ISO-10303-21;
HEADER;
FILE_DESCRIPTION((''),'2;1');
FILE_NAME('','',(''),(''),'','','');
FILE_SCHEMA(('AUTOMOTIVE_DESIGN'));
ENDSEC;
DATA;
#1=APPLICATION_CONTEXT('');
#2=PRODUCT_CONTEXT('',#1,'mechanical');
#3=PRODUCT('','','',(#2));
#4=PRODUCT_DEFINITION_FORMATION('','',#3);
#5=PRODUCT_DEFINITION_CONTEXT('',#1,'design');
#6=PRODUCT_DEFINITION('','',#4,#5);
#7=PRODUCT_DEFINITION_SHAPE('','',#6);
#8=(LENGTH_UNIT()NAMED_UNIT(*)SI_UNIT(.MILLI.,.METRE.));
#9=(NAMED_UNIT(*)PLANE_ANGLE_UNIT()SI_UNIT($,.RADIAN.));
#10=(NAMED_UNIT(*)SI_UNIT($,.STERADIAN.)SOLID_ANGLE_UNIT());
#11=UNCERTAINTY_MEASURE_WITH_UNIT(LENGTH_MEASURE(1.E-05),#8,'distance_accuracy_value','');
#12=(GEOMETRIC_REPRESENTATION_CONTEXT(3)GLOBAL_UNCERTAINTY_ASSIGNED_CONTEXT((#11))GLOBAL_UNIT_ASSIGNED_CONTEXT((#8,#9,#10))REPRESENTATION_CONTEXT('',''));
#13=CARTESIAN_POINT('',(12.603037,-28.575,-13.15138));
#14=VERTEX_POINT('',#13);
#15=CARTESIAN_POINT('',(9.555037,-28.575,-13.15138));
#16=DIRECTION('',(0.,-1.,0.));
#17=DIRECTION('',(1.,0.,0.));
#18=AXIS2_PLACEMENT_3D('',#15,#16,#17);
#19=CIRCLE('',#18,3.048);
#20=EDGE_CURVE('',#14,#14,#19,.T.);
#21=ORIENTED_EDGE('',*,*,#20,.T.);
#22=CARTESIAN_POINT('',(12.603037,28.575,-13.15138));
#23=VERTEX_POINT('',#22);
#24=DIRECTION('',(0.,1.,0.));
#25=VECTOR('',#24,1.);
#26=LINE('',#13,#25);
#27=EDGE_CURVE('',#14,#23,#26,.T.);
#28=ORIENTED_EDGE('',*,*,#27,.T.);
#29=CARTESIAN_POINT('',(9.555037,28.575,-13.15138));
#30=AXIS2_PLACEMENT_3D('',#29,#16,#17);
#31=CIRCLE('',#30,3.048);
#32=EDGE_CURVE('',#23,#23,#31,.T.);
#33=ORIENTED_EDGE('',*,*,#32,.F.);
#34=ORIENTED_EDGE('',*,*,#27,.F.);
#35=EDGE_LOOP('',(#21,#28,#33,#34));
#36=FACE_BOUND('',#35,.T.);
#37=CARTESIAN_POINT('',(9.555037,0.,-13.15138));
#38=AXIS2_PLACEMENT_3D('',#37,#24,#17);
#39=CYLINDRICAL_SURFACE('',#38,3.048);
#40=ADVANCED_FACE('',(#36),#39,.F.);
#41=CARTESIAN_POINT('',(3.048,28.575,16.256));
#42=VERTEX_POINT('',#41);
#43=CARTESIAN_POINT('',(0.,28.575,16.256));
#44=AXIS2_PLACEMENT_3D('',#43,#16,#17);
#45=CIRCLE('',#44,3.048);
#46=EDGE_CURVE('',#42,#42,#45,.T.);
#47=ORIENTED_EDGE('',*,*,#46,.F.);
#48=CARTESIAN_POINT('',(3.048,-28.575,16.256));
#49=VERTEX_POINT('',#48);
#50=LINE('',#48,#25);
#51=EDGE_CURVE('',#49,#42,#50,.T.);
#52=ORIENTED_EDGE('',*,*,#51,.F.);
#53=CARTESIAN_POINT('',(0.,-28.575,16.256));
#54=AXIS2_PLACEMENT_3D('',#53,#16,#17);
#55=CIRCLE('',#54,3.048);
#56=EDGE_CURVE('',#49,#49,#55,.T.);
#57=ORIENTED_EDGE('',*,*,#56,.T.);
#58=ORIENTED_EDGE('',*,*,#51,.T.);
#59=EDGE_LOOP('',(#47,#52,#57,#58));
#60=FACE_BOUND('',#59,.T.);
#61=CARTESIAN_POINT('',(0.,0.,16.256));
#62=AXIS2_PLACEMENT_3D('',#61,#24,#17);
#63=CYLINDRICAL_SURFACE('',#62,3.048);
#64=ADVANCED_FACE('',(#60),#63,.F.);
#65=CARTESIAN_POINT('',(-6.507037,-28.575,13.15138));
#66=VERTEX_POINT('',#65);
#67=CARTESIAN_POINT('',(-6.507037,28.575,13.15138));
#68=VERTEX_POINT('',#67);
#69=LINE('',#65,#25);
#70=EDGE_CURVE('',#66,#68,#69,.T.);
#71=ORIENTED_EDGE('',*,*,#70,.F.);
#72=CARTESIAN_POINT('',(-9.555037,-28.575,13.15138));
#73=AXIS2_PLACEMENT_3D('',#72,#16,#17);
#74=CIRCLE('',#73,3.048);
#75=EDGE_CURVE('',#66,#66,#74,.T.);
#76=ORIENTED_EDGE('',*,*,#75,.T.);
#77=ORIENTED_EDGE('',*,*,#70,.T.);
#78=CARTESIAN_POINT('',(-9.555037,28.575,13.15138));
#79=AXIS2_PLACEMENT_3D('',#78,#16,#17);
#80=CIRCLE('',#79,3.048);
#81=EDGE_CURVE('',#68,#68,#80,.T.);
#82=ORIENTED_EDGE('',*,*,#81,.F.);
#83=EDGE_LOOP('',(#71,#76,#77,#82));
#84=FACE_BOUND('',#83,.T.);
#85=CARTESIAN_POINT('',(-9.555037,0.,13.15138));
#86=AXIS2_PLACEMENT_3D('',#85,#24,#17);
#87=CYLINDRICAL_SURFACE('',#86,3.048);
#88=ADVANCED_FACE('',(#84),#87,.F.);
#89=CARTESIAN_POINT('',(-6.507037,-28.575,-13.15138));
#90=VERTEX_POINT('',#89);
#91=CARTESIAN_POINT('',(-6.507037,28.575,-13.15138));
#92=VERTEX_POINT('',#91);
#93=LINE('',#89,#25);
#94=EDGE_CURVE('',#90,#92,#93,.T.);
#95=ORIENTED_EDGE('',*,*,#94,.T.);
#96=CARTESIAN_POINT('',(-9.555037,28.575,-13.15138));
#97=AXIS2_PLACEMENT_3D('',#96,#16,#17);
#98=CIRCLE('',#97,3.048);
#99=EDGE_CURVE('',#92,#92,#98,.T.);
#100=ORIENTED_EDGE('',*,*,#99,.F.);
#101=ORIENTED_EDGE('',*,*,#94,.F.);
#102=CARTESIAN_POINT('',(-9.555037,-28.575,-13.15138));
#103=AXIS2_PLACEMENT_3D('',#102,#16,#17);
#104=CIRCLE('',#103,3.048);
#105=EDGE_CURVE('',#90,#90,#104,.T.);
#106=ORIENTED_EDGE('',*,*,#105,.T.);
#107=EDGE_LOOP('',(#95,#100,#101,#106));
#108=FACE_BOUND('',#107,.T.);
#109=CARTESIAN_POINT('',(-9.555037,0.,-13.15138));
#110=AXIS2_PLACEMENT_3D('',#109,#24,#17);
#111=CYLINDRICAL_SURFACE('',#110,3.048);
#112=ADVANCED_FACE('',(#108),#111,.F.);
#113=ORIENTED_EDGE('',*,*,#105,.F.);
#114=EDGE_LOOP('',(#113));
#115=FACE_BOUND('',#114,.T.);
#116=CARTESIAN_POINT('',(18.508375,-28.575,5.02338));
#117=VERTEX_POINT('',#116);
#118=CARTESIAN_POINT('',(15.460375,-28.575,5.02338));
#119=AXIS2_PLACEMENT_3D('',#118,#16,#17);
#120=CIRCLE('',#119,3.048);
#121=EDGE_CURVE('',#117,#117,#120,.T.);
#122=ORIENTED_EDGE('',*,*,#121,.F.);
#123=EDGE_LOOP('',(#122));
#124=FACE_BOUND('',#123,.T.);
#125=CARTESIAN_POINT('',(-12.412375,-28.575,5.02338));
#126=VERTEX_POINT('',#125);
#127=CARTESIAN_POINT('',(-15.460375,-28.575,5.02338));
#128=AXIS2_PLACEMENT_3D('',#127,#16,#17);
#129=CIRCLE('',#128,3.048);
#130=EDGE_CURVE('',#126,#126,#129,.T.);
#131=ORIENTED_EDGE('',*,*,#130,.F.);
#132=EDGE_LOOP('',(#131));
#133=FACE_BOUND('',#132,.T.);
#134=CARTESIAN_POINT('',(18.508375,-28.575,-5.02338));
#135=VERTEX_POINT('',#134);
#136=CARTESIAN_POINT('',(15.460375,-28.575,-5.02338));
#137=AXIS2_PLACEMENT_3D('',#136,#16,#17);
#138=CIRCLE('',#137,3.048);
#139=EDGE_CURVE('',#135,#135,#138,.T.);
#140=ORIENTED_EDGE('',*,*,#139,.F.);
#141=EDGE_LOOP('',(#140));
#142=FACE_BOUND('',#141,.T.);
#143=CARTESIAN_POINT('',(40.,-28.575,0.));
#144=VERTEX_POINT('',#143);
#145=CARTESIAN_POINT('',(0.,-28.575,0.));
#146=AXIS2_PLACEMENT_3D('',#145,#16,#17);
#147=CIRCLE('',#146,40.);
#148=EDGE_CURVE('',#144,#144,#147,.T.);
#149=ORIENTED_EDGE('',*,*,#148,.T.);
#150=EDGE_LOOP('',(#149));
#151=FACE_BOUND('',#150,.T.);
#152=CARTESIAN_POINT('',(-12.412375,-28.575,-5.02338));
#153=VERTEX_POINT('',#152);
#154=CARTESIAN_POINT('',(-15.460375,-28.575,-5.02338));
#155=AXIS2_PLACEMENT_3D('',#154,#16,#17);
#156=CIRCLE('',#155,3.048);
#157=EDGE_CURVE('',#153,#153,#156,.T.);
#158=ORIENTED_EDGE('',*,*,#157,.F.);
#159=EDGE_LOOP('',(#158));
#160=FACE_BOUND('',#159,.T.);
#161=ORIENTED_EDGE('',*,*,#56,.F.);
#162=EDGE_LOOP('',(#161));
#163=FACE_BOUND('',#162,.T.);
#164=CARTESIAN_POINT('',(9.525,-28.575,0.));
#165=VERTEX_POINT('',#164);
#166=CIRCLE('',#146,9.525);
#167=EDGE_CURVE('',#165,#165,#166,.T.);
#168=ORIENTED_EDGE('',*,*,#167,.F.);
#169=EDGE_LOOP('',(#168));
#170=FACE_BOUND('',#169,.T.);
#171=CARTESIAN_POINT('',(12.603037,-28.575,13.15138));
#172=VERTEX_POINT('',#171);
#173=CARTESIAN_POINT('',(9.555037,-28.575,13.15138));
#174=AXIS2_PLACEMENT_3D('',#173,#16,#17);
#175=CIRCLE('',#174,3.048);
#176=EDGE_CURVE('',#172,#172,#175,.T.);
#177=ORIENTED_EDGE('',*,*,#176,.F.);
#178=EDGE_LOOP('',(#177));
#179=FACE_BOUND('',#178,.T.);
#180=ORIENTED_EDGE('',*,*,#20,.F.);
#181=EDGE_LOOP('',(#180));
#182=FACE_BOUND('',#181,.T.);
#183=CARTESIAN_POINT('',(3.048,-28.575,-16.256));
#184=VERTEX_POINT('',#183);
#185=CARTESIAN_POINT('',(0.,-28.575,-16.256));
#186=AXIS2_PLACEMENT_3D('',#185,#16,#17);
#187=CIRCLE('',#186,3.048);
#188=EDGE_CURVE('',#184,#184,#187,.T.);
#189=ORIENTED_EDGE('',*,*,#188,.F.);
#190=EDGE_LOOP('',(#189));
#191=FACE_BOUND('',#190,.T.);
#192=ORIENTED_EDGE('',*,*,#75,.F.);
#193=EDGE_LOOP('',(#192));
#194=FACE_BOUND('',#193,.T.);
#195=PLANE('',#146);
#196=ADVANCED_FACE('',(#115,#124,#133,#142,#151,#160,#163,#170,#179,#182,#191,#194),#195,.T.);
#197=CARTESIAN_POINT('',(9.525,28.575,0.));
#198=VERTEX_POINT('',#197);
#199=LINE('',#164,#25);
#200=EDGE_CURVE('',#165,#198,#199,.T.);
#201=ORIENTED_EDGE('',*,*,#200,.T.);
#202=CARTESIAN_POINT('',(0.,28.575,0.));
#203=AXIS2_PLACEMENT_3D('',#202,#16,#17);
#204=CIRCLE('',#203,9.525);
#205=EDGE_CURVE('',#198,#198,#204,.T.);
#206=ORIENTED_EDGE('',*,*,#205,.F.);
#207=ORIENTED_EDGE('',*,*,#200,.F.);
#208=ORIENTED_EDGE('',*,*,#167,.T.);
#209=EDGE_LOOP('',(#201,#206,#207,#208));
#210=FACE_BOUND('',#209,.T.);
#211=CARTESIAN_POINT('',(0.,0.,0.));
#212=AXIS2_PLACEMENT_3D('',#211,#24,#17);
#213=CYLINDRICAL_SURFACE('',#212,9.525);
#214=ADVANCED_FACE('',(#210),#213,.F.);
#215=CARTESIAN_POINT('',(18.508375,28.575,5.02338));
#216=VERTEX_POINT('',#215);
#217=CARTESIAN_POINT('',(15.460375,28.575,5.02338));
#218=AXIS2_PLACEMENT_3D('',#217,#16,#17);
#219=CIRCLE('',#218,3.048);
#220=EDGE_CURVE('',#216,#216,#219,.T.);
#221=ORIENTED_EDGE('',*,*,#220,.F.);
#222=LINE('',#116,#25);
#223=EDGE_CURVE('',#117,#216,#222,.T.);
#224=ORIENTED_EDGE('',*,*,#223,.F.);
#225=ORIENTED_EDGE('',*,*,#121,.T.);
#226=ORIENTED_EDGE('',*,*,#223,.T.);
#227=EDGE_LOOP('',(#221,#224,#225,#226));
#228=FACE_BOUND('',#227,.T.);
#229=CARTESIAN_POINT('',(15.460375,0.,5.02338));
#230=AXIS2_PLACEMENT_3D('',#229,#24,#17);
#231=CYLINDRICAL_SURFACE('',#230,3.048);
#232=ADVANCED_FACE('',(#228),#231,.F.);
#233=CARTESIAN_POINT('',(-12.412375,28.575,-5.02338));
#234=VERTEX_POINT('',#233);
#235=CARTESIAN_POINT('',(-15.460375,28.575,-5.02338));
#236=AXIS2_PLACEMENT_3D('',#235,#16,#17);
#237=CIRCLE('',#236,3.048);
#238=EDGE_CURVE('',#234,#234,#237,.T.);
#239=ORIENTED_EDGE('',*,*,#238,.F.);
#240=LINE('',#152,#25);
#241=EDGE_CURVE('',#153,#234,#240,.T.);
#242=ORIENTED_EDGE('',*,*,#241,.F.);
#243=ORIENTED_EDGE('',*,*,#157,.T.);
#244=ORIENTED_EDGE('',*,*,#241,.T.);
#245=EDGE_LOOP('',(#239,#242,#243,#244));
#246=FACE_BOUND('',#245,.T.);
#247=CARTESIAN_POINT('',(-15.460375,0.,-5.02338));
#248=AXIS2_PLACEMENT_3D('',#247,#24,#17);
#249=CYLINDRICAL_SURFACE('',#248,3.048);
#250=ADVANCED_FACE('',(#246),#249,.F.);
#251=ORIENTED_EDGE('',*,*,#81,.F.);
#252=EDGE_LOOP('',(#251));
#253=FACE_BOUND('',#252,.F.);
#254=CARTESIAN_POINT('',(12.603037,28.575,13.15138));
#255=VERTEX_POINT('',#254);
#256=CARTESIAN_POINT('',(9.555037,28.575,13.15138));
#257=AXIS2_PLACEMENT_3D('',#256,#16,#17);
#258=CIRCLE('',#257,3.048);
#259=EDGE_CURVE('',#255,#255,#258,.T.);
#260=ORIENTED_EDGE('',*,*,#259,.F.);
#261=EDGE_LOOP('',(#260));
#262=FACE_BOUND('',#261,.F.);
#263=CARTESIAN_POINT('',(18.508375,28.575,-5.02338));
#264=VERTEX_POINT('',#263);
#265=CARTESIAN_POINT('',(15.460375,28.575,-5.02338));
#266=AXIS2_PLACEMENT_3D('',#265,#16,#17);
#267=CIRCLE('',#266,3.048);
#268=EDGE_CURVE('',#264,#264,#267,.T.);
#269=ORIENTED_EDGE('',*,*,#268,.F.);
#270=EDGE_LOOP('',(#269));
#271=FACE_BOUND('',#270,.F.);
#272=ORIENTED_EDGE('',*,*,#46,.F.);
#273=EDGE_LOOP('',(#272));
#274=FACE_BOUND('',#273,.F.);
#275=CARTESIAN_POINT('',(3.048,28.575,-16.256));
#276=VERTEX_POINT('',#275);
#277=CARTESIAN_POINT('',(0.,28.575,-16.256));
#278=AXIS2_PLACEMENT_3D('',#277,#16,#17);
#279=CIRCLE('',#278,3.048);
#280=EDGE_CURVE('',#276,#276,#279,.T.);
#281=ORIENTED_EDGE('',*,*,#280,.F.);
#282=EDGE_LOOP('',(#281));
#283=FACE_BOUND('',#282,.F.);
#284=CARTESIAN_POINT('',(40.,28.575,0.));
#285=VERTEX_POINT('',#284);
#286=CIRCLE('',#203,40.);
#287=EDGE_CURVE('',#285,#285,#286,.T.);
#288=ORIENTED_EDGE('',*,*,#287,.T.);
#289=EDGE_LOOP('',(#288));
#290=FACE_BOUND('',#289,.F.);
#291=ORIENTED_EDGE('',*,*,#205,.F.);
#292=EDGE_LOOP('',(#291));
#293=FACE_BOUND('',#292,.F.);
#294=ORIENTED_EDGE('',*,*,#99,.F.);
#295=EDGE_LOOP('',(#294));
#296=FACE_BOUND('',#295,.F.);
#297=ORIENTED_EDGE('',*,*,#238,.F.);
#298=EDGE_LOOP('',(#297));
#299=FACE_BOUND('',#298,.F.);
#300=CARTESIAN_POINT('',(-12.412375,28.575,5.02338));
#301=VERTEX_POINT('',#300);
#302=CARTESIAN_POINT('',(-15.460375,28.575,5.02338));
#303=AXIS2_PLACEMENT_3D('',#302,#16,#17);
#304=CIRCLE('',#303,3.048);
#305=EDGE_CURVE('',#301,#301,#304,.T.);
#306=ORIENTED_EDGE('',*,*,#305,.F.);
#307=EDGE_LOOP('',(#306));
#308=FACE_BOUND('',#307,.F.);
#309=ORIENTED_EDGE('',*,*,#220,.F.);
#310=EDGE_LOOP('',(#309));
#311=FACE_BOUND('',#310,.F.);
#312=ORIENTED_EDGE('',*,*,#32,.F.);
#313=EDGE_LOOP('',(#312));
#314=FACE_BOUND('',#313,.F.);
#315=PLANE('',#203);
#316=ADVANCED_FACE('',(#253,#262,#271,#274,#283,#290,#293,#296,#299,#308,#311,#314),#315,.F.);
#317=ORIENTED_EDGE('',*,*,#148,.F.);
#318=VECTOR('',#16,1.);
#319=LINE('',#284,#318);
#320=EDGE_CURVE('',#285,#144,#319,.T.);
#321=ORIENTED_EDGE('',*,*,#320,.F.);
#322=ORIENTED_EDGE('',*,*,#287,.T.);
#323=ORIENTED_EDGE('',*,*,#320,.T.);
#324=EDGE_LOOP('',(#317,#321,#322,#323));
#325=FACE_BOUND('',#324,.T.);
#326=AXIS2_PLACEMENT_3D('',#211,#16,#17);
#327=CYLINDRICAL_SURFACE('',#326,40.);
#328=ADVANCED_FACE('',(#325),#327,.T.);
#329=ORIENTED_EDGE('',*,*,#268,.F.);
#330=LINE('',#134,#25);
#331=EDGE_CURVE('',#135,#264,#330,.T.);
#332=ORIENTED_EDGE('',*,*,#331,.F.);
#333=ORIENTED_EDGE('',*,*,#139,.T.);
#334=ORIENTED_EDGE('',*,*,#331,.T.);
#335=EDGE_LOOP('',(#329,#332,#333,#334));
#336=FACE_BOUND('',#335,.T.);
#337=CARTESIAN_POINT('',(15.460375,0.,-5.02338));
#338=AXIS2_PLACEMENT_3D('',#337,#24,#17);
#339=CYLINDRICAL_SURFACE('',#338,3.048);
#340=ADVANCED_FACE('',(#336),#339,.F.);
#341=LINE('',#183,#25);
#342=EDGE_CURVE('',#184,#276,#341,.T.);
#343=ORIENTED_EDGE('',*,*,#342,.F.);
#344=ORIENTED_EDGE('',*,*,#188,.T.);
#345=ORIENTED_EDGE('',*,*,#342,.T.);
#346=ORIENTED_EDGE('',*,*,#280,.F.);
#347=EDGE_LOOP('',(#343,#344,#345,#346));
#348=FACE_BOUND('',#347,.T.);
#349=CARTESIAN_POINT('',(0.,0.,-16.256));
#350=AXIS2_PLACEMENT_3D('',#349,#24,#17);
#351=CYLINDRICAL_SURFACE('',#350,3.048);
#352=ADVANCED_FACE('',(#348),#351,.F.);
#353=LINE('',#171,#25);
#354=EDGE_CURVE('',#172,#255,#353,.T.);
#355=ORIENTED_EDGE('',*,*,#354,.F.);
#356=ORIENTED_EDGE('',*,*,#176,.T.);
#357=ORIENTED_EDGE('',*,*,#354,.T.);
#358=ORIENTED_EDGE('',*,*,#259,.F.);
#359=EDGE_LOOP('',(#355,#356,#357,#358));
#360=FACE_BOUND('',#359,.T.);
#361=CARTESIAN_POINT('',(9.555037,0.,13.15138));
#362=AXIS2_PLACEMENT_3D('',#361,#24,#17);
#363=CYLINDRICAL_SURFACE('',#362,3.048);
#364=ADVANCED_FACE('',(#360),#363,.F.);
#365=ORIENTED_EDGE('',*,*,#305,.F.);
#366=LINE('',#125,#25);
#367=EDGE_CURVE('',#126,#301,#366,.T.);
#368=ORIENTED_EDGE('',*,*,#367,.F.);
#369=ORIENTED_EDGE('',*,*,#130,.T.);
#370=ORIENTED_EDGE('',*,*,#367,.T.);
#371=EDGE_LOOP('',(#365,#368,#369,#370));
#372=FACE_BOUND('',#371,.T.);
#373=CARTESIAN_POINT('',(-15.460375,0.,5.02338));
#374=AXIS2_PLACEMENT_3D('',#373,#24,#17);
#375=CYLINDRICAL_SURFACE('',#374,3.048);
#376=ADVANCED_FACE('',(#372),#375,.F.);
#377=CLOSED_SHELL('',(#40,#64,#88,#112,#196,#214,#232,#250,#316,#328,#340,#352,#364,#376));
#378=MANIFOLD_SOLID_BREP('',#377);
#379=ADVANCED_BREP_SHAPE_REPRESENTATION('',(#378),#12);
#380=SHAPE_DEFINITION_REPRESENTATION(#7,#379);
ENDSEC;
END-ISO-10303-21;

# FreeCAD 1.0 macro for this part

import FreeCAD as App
import Part
import Sketcher
Q = App.Units.Quantity

doc = App.newDocument("Part")
body = doc.addObject("PartDesign::Body", "Body")

sketch1 = body.newObject("Sketcher::SketchObject", "Sketch")
sketch1.AttachmentSupport = (doc.getObject("XZ_Plane"), [""])
sketch1.MapMode = "FlatFace"
sketch1.addGeometry([
    Part.Circle(App.Vector(0, 0, 0), App.Vector(0, 0, 1), 40),
    Part.Circle(App.Vector(-9.555037, -13.15138, 0), App.Vector(0, 0, 1), 3.048),
    Part.Circle(App.Vector(-15.460375, -5.02338, 0), App.Vector(0, 0, 1), 3.048),
    Part.Circle(App.Vector(0, -16.256, 0), App.Vector(0, 0, 1), 3.048),
    Part.Circle(App.Vector(9.555037, -13.15138, 0), App.Vector(0, 0, 1), 3.048),
    Part.Circle(App.Vector(15.460375, -5.02338, 0), App.Vector(0, 0, 1), 3.048),
    Part.Circle(App.Vector(-15.460375, 5.02338, 0), App.Vector(0, 0, 1), 3.048),
    Part.Circle(App.Vector(-9.555037, 13.15138, 0), App.Vector(0, 0, 1), 3.048),
    Part.Circle(App.Vector(0, 0, 0), App.Vector(0, 0, 1), 9.525),
    Part.Circle(App.Vector(15.460375, 5.02338, 0), App.Vector(0, 0, 1), 3.048),
    Part.Circle(App.Vector(0, 16.256, 0), App.Vector(0, 0, 1), 3.048),
    Part.Circle(App.Vector(9.555037, 13.15138, 0), App.Vector(0, 0, 1), 3.048),
], False)
sketch1.addConstraint([
    Sketcher.Constraint("Coincident", 0, 3, -1, 1),
    Sketcher.Constraint("Coincident", 8, 3, -1, 1),
    Sketcher.Constraint("Equal", 1, 2),
    Sketcher.Constraint("Equal", 2, 3),
    Sketcher.Constraint("Equal", 3, 4),
    Sketcher.Constraint("Equal", 4, 5),
    Sketcher.Constraint("Equal", 5, 6),
    Sketcher.Constraint("Equal", 6, 7),
    Sketcher.Constraint("Equal", 7, 9),
    Sketcher.Constraint("Equal", 9, 10),
    Sketcher.Constraint("Equal", 10, 11),
    Sketcher.Constraint("Symmetric", 5, 3, 6, 3, -1, 1),
    Sketcher.Constraint("Symmetric", 4, 3, 7, 3, -1, 1),
    Sketcher.Constraint("Symmetric", 2, 3, 9, 3, -1, 1),
    Sketcher.Constraint("Symmetric", 3, 3, 10, 3, -1, 1),
    Sketcher.Constraint("Symmetric", 1, 3, 11, 3, -1, 1),
    Sketcher.Constraint("Symmetric", 1, 3, 4, 3, -2),
    Sketcher.Constraint("Symmetric", 2, 3, 5, 3, -2),
    Sketcher.Constraint("PointOnObject", 3, 3, -2),
    Sketcher.Constraint("Diameter", 1, Q("0.24 in")),
    Sketcher.Constraint("Diameter", 8, Q("0.75 in")),
    Sketcher.Constraint("Diameter", 0, Q("80 mm")),
    Sketcher.Constraint("DistanceY", 3, 3, -1, 1, Q("0.64 in")),
    Sketcher.Constraint("DistanceY", 1, 3, 2, 3, Q("0.32 in")),
    Sketcher.Constraint("DistanceY", 1, 3, -1, 1, Q("13.15138 mm")),
    Sketcher.Constraint("DistanceX", 2, 3, 1, 3, Q("5.905338 mm")),
    Sketcher.Constraint("DistanceX", 2, 3, 5, 3, Q("30.92075 mm")),
])
pad1 = body.newObject("PartDesign::Pad", "Pad")
pad1.Profile = sketch1
pad1.Length = Q("2.25 in")
pad1.Midplane = True

doc.recompute()
